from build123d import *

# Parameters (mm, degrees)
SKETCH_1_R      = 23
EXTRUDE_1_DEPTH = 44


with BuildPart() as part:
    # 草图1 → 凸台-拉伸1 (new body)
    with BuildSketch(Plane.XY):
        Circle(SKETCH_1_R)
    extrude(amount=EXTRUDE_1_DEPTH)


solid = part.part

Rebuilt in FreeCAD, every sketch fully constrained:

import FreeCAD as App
import Part
import Sketcher

V = App.Vector

doc = App.newDocument("Part")
params = doc.addObject("Spreadsheet::Sheet", "Params")
for row, (alias, value) in enumerate([
    ("sketch1_diameter", "46 mm"),
    ("pad1_length", "44 mm"),
], start=1):
    params.set(f"A{row}", alias)
    params.set(f"B{row}", "=" + value)
    params.setAlias(f"B{row}", alias)

body = doc.addObject("PartDesign::Body", "Body")

# Sketch on XY plane
sketch1 = body.newObject("Sketcher::SketchObject", "Sketch")
sketch1.AttachmentSupport = (doc.getObject("XY_Plane"), [""])
sketch1.MapMode = "FlatFace"
sketch1.addGeometry(Part.Circle(V(0, 0, 0), V(0, 0, 1), 23), False)
sketch1.addConstraint(Sketcher.Constraint("Coincident", 0, 3, -1, 1))
sketch1.addConstraint(Sketcher.Constraint("Diameter", 0, 46.0))
sketch1.setExpression("Constraints[1]", "Params.sketch1_diameter")
pad1 = body.newObject("PartDesign::Pad", "Pad")
pad1.Profile = sketch1
pad1.setExpression("Length", "Params.pad1_length")

doc.recompute()
